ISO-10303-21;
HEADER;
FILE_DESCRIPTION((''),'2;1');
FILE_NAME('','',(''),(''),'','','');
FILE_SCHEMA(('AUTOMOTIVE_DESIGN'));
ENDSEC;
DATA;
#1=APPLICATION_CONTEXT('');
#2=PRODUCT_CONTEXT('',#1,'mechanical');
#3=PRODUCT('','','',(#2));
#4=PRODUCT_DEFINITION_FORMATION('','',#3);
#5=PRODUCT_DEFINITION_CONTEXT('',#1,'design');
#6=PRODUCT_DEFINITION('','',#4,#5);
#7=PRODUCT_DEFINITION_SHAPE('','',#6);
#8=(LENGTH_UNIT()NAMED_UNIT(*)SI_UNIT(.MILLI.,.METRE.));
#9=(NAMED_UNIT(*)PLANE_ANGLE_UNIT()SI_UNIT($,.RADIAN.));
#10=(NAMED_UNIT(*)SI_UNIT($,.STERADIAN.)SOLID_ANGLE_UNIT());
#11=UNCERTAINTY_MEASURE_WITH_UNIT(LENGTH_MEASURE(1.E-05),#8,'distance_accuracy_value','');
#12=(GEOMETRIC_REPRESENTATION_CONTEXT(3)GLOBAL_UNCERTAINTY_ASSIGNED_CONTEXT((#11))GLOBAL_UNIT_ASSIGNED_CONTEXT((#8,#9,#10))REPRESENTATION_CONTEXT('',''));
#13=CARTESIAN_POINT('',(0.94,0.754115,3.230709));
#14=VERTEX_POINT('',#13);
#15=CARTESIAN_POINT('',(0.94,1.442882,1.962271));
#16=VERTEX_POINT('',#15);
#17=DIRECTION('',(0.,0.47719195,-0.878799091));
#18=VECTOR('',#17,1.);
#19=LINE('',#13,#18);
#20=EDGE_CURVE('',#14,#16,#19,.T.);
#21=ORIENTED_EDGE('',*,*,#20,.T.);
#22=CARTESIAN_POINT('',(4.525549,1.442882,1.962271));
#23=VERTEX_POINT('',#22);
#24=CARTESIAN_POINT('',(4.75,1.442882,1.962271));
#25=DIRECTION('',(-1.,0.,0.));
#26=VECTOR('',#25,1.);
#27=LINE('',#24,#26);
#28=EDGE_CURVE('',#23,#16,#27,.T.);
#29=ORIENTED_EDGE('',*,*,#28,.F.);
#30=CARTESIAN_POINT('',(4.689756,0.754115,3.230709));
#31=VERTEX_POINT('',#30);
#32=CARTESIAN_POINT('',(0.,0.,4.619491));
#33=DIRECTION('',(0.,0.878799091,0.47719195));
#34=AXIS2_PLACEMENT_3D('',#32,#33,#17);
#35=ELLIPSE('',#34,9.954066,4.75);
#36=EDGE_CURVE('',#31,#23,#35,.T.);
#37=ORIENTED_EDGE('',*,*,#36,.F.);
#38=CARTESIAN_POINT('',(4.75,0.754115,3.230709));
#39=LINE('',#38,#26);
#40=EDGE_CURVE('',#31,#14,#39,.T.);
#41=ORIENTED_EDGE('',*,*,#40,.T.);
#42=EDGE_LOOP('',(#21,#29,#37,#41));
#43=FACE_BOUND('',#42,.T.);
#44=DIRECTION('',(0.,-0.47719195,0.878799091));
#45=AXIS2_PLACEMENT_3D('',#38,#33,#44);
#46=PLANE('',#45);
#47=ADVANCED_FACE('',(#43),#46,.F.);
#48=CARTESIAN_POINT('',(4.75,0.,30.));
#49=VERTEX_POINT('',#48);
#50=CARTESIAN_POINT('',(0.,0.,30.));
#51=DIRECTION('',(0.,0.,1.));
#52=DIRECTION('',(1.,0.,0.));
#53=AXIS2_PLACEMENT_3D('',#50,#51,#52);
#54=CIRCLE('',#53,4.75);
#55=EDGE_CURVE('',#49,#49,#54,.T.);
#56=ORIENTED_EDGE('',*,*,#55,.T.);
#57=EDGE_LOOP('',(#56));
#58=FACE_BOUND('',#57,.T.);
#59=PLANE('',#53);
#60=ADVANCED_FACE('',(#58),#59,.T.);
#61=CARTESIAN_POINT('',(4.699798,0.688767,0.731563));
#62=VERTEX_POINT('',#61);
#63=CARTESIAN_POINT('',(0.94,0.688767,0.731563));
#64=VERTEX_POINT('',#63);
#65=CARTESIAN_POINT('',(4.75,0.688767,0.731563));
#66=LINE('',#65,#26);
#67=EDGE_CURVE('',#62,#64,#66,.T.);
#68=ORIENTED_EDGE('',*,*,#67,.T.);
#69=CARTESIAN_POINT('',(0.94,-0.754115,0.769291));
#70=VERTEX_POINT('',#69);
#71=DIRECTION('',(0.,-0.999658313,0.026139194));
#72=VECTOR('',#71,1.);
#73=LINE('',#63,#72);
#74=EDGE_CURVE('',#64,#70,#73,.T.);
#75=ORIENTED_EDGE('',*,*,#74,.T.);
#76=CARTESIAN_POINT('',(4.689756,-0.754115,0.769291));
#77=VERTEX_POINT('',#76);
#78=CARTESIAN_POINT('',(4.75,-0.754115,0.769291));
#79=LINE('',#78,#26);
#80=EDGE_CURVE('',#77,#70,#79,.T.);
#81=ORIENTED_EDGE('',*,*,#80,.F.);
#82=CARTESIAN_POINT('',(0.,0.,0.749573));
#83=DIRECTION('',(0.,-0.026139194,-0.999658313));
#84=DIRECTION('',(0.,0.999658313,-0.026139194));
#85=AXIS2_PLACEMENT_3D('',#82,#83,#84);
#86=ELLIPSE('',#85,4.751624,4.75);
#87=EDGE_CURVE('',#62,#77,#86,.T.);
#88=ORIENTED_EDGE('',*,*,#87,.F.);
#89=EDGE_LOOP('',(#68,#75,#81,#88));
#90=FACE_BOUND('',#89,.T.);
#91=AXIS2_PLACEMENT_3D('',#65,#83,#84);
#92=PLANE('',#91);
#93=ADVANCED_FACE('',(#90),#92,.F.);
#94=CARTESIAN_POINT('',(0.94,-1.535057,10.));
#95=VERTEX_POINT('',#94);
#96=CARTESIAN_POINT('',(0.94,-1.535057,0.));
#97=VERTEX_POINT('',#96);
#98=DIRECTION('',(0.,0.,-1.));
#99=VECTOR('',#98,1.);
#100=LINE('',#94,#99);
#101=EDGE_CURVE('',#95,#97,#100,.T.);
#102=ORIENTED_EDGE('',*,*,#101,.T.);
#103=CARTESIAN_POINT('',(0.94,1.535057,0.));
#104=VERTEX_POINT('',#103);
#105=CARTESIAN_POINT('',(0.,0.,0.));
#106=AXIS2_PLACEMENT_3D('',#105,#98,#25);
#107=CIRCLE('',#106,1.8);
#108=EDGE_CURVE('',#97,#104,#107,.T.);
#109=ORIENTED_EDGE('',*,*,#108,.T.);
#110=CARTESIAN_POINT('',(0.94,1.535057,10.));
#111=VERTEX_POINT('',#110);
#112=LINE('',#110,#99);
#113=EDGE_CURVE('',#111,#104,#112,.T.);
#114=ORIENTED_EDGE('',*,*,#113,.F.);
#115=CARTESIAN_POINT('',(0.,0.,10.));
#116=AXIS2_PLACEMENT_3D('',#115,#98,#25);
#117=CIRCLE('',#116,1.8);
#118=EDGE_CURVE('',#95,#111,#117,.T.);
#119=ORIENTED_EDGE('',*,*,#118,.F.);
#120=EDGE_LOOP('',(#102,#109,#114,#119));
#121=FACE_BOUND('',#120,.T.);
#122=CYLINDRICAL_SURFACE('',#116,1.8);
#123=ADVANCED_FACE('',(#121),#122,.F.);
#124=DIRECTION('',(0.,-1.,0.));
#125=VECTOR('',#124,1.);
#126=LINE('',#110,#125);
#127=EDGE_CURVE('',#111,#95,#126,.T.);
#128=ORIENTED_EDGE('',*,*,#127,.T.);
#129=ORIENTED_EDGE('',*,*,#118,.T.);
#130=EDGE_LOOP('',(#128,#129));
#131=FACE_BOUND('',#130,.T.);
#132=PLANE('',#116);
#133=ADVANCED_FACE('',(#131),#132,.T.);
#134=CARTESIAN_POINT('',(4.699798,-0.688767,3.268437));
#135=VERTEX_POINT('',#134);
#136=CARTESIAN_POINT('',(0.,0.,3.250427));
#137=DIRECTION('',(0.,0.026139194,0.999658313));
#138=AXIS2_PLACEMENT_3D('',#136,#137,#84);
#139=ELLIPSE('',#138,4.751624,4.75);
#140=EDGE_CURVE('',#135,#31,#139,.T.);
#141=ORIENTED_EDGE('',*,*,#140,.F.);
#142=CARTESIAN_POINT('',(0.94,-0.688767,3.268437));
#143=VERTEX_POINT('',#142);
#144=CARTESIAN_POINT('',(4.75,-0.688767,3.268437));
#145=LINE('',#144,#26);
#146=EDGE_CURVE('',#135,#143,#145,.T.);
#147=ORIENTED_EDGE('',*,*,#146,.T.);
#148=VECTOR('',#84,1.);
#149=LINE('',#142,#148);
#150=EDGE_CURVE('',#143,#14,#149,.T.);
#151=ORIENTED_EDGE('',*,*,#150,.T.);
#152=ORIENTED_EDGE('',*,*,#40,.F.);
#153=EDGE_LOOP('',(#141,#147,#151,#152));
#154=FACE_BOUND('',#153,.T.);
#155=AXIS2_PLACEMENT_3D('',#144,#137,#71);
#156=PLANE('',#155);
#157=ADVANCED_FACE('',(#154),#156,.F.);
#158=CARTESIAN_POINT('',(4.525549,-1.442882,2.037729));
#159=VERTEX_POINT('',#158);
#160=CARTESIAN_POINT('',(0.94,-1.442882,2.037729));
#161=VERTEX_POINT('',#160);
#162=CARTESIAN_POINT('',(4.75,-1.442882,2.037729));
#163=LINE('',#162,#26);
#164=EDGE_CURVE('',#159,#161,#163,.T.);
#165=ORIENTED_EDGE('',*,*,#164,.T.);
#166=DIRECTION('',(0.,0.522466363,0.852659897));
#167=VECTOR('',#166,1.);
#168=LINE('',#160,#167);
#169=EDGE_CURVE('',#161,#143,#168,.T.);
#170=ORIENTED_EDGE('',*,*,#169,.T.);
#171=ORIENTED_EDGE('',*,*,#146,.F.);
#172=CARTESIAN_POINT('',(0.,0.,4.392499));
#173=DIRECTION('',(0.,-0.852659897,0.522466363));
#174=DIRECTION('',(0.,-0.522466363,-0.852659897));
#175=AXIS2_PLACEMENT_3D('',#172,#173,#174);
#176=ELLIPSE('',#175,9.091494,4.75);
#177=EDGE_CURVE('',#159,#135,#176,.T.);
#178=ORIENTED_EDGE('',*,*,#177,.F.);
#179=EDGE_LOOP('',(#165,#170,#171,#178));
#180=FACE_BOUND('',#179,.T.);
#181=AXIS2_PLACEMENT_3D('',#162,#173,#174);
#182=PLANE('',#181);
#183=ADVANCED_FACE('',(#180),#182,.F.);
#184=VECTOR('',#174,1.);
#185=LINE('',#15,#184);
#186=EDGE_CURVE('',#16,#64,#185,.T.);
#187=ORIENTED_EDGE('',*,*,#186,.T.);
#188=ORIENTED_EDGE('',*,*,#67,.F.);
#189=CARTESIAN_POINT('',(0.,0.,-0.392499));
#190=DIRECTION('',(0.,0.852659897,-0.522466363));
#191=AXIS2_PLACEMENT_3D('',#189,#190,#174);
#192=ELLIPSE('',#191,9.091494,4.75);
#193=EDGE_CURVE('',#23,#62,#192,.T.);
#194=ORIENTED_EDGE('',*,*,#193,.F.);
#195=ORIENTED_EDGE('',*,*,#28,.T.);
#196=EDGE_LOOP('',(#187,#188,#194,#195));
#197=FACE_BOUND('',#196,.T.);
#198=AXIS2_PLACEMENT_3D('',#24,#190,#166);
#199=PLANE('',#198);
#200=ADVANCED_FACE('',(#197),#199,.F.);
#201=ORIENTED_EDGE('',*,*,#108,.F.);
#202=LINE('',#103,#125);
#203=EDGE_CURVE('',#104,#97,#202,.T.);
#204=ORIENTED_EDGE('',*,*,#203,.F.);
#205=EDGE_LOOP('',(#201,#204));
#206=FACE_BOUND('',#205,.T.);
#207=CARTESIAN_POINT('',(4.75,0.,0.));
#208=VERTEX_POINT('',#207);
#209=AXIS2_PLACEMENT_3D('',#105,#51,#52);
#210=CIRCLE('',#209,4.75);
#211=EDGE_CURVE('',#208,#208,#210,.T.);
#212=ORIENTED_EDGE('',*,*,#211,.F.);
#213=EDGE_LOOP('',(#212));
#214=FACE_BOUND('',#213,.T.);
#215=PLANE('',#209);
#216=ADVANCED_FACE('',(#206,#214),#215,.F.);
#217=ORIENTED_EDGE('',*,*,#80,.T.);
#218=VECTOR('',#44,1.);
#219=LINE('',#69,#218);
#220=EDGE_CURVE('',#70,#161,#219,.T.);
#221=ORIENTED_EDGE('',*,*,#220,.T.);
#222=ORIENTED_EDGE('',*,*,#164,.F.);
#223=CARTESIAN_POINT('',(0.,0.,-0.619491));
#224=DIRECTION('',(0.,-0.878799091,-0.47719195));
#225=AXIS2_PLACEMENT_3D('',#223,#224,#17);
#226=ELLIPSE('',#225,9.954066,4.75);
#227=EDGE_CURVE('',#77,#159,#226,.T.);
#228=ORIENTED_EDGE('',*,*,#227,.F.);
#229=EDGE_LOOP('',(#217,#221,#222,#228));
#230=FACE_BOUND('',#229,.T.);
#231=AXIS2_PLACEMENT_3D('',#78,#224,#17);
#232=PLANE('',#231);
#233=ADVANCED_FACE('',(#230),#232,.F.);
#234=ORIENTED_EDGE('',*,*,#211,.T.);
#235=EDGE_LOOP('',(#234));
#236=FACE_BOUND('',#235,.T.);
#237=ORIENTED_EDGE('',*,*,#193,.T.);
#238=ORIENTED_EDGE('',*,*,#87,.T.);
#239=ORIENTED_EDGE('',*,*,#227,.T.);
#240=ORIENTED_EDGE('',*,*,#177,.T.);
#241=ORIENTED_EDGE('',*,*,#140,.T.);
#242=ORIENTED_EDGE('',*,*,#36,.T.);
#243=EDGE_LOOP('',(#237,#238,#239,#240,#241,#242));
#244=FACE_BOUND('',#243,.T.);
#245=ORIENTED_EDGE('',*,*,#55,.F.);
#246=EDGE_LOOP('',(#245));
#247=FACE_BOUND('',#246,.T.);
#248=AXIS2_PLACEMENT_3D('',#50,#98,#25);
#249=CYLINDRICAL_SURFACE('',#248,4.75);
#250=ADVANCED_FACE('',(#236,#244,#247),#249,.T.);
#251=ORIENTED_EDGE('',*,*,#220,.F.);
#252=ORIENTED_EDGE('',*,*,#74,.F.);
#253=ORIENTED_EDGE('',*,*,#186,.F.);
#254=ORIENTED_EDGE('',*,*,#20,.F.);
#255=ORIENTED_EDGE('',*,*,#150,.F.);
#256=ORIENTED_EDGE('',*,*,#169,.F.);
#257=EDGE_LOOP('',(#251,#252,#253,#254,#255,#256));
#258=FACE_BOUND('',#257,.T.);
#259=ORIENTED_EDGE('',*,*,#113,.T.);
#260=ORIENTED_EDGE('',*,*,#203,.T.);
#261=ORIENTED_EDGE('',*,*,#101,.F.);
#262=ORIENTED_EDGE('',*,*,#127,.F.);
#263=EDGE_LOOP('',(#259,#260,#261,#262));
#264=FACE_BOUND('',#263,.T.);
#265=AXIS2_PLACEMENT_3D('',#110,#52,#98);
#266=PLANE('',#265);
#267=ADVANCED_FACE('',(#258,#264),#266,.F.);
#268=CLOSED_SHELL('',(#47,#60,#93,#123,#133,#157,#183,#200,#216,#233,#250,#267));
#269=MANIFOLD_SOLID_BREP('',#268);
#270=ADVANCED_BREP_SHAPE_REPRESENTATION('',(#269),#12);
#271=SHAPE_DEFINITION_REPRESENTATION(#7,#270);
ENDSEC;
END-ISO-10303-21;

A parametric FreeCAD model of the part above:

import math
import FreeCAD as App
import Part
import Sketcher
from FreeCAD import Vector


def add_polygon(sketch, points):
    """Adds a closed chain of lines whose ends are joined by coincident constraints."""
    first, n = sketch.GeometryCount, len(points)
    for a, b in zip(points, points[1:] + points[:1]):
        sketch.addGeometry(Part.LineSegment(App.Vector(*a, 0), App.Vector(*b, 0)), False)
    for i in range(n):
        sketch.addConstraint(Sketcher.Constraint("Coincident", first + i, 2, first + (i + 1) % n, 1))

doc = App.newDocument("Part")
body = doc.addObject("PartDesign::Body", "Body")

# Sketch on XY plane
sketch1 = body.newObject("Sketcher::SketchObject", "Sketch")
sketch1.AttachmentSupport = (doc.getObject("XY_Plane"), [""])
sketch1.MapMode = "FlatFace"
sketch1.addGeometry(Part.Circle(Vector(0, 0, 0), Vector(0, 0, 1), 4.75), False)
sketch1.addConstraint(Sketcher.Constraint("Coincident", 0, 3, -1, 1))
sketch1.addConstraint(Sketcher.Constraint("Diameter", 0, 9.5))
pad1 = body.newObject("PartDesign::Pad", "Pad")
pad1.Profile = sketch1
pad1.Length = 30

# Sketch on XY plane
sketch2 = body.newObject("Sketcher::SketchObject", "Sketch001")
sketch2.AttachmentSupport = (doc.getObject("XY_Plane"), [""])
sketch2.MapMode = "FlatFace"
sketch2.addGeometry(Part.LineSegment(Vector(0.94, 1.535057, 0), Vector(0.94, -1.535057, 0)), False)
sketch2.addGeometry(Part.ArcOfCircle(Part.Circle(Vector(0, 0, 0), Vector(0, 0, 1), 1.8), math.radians(58.518568), math.radians(301.481432)), False)
sketch2.addConstraint(Sketcher.Constraint("Coincident", 0, 1, 1, 1))
sketch2.addConstraint(Sketcher.Constraint("Coincident", 1, 2, 0, 2))
sketch2.addConstraint(Sketcher.Constraint("Vertical", 0))
sketch2.addConstraint(Sketcher.Constraint("Coincident", 1, 3, -1, 1))
sketch2.addConstraint(Sketcher.Constraint("Radius", 1, 1.8))
sketch2.addConstraint(Sketcher.Constraint("DistanceX", -1, 1, 0, 1, 0.94))
pocket1 = body.newObject("PartDesign::Pocket", "Pocket")
pocket1.Profile = sketch2
pocket1.Length = 10
pocket1.Reversed = True

# Sketch on YZ plane
sketch3 = body.newObject("Sketcher::SketchObject", "Sketch002")
sketch3.AttachmentSupport = (doc.getObject("YZ_Plane"), [""])
sketch3.MapMode = "FlatFace"
sketch3.AttachmentOffset = App.Placement(Vector(0, 0, 0.94), App.Rotation())
add_polygon(sketch3, [(0.754115, 3.230709), (1.442882, 1.962271), (0.688767, 0.731563), (-0.754115, 0.769291), (-1.442882, 2.037729), (-0.688767, 3.268437)])  # lines 0-5
sketch3.addConstraint(Sketcher.Constraint("Parallel", 0, 3))
sketch3.addConstraint(Sketcher.Constraint("Parallel", 1, 4))
sketch3.addConstraint(Sketcher.Constraint("Parallel", 2, 5))
sketch3.addConstraint(Sketcher.Constraint("Equal", 0, 1))
sketch3.addConstraint(Sketcher.Constraint("Equal", 1, 2))
sketch3.addConstraint(Sketcher.Constraint("Equal", 2, 3))
sketch3.addConstraint(Sketcher.Constraint("DistanceY", -1, 1, 0, 2, 1.962271))
sketch3.addConstraint(Sketcher.Constraint("DistanceY", -1, 1, 2, 2, 0.769291))
sketch3.addConstraint(Sketcher.Constraint("DistanceY", -1, 1, 3, 2, 2.037729))
sketch3.addConstraint(Sketcher.Constraint("DistanceY", 1, 2, 0, 2, 1.230709))
sketch3.addConstraint(Sketcher.Constraint("DistanceX", 3, 2, 1, 2, 2.13165))
sketch3.addConstraint(Sketcher.Constraint("DistanceX", -1, 1, 0, 2, 1.442882))
pocket2 = body.newObject("PartDesign::Pocket", "Pocket001")
pocket2.Profile = sketch3
pocket2.Type = "ThroughAll"
pocket2.Reversed = True

doc.recompute()
